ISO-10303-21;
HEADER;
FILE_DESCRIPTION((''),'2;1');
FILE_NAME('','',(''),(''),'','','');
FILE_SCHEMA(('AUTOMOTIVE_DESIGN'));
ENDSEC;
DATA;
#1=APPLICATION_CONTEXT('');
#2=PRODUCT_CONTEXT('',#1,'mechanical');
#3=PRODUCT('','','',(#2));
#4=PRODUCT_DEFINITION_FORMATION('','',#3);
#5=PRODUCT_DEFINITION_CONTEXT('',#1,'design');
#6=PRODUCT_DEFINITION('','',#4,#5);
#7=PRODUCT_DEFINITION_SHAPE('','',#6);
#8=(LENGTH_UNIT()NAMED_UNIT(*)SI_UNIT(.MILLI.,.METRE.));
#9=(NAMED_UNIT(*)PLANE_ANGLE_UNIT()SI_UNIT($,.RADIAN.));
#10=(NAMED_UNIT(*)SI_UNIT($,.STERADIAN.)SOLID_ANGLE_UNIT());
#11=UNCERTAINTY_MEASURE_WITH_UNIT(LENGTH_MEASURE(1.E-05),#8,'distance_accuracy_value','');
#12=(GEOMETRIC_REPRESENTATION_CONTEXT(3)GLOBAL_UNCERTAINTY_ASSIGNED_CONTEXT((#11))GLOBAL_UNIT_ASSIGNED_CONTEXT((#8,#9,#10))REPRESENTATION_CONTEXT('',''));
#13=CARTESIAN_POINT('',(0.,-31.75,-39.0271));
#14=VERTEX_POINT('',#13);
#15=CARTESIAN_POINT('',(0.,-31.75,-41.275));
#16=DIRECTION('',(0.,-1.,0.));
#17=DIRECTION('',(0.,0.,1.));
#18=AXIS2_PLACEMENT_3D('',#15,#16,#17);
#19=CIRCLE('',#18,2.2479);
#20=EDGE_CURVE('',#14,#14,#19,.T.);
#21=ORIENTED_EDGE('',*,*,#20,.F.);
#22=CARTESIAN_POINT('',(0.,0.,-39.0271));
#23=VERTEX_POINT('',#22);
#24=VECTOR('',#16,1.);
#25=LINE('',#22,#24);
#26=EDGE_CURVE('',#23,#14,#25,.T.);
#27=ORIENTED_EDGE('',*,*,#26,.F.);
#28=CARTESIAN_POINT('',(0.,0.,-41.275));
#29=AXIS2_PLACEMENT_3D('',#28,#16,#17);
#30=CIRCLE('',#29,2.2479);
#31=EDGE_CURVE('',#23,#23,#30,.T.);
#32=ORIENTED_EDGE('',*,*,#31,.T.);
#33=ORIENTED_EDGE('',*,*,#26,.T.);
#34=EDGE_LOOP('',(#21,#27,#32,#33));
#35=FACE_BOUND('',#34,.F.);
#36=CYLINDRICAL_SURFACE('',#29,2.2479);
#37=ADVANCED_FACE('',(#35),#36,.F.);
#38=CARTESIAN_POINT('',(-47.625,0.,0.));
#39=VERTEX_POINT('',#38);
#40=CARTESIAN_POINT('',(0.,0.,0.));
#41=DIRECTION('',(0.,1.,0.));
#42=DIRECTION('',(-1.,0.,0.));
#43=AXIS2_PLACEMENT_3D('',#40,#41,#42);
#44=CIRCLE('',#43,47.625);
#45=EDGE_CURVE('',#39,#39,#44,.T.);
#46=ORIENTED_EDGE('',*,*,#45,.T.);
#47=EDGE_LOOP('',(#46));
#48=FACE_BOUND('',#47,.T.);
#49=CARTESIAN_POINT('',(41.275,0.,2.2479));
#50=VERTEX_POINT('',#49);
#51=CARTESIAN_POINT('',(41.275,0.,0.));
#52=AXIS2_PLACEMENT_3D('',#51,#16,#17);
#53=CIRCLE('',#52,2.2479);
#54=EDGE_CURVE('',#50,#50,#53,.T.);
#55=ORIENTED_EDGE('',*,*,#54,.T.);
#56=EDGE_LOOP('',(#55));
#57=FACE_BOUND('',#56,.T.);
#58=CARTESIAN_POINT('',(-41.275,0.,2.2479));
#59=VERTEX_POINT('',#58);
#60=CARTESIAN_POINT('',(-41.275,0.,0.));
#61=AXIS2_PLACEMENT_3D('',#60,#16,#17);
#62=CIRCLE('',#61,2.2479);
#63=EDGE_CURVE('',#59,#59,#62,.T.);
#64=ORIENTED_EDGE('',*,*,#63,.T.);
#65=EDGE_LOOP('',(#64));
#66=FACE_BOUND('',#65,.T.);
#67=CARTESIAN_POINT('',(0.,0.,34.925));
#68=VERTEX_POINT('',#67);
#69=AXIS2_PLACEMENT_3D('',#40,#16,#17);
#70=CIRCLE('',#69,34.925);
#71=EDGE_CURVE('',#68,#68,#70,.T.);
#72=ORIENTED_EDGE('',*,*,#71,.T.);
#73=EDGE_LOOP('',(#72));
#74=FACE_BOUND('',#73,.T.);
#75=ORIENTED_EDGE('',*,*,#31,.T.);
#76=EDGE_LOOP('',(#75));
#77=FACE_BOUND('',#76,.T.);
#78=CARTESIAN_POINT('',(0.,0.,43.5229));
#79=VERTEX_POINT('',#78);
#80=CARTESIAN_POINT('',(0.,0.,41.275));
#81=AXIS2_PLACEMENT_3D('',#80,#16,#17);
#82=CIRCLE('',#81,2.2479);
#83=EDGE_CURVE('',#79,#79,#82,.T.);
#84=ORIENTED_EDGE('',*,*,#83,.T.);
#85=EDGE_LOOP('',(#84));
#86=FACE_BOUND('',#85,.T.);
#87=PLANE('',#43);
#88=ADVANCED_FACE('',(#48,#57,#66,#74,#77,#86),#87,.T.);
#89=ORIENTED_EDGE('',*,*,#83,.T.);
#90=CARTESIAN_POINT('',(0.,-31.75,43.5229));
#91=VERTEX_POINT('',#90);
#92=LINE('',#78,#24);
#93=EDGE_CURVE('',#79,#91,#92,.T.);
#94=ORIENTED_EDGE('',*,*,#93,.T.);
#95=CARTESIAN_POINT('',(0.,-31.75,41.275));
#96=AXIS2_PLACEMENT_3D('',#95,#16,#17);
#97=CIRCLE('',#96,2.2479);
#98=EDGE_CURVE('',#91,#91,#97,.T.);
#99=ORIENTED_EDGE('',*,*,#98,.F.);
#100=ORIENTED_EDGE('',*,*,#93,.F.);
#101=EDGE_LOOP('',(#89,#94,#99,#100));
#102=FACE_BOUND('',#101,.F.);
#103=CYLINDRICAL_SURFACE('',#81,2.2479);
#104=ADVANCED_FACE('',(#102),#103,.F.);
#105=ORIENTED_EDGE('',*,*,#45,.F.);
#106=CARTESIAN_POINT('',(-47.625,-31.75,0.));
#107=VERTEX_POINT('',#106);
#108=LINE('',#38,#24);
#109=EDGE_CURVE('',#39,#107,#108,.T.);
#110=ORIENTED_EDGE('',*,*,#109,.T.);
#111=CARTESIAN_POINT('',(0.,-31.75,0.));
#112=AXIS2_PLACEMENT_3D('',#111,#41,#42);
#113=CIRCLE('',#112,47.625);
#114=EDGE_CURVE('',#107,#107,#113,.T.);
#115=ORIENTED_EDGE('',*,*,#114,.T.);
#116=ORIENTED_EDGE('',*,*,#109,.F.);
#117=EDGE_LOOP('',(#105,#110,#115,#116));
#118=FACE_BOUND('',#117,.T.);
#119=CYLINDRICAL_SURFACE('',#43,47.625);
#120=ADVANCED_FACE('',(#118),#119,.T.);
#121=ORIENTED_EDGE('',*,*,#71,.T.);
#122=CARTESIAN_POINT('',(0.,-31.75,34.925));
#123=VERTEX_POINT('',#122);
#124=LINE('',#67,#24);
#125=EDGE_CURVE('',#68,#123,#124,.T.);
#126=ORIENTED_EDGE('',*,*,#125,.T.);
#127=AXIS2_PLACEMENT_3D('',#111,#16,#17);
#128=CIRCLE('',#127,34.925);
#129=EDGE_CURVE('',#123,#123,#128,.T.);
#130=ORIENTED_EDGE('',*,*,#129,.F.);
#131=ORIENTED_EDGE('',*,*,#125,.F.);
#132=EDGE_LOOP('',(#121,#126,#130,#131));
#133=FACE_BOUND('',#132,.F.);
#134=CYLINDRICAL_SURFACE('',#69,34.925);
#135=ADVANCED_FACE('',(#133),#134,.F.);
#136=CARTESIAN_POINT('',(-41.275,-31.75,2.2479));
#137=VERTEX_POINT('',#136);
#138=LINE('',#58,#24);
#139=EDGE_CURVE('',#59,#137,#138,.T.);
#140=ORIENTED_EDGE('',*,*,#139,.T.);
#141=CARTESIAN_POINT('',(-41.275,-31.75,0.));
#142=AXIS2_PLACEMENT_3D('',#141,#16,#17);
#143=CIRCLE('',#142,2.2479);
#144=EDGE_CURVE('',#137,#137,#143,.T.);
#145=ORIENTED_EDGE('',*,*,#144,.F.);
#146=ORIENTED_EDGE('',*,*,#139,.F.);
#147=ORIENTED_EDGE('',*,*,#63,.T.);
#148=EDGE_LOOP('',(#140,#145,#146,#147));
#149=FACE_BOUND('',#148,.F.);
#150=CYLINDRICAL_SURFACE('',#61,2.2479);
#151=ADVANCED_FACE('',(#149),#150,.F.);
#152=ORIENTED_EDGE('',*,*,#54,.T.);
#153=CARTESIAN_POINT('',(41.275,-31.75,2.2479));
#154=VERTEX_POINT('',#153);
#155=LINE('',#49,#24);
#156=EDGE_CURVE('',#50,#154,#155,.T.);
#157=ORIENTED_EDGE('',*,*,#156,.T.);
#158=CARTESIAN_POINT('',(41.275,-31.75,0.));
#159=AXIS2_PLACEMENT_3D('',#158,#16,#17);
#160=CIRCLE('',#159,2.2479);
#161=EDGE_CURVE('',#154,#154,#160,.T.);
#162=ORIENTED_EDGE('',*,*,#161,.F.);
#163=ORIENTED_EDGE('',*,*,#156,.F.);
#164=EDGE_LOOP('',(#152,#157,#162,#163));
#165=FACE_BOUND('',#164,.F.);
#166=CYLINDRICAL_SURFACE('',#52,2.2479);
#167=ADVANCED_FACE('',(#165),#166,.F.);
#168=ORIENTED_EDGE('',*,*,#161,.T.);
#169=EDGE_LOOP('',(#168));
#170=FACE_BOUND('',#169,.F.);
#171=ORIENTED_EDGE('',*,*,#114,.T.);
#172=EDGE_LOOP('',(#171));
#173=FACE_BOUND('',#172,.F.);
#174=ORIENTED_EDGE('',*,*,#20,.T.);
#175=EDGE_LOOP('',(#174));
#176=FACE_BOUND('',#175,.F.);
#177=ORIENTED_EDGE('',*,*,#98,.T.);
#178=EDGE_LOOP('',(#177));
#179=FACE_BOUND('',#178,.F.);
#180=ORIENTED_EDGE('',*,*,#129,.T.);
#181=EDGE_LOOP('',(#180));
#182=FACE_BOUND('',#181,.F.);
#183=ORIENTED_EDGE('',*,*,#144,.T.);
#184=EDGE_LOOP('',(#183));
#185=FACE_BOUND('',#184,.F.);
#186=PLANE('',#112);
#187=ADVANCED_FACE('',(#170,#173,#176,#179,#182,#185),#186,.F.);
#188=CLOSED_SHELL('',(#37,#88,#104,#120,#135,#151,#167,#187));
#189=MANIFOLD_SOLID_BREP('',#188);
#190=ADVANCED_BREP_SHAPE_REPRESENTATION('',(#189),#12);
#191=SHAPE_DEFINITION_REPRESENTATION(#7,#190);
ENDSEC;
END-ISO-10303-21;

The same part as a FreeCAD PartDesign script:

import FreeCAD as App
import Part
import Sketcher
from FreeCAD import Vector
Q = App.Units.Quantity

doc = App.newDocument("Part")
body = doc.addObject("PartDesign::Body", "Body")

# Sketch on XZ plane
sketch1 = body.newObject("Sketcher::SketchObject", "Sketch")
sketch1.AttachmentSupport = (doc.getObject("XZ_Plane"), [""])
sketch1.MapMode = "FlatFace"
sketch1.addGeometry(Part.Circle(Vector(0, 0, 0), Vector(0, 0, 1), 48), False)
sketch1.addConstraint(Sketcher.Constraint("Coincident", 0, 3, -1, 1))
sketch1.addConstraint(Sketcher.Constraint("Diameter", 0, Q("3.75 in")))
pad1 = body.newObject("PartDesign::Pad", "Pad")
pad1.Profile = sketch1
pad1.Length = Q("1.25 in")

# Sketch on XZ plane
sketch2 = body.newObject("Sketcher::SketchObject", "Sketch001")
sketch2.AttachmentSupport = (doc.getObject("XZ_Plane"), [""])
sketch2.MapMode = "FlatFace"
sketch2.addGeometry(Part.Circle(Vector(-41.3, 0, 0), Vector(0, 0, 1), 2.2), False)
sketch2.addGeometry(Part.Circle(Vector(0, -41.3, 0), Vector(0, 0, 1), 2.2), False)
sketch2.addGeometry(Part.Circle(Vector(41.3, 0, 0), Vector(0, 0, 1), 2.2), False)
sketch2.addGeometry(Part.Circle(Vector(0, 41.3, 0), Vector(0, 0, 1), 2.2), False)
sketch2.addConstraint(Sketcher.Constraint("Equal", 0, 1))
sketch2.addConstraint(Sketcher.Constraint("Equal", 1, 2))
sketch2.addConstraint(Sketcher.Constraint("Equal", 2, 3))
sketch2.addConstraint(Sketcher.Constraint("Symmetric", 0, 3, 2, 3, -1, 1))
sketch2.addConstraint(Sketcher.Constraint("Symmetric", 1, 3, 3, 3, -1, 1))
sketch2.addConstraint(Sketcher.Constraint("PointOnObject", 0, 3, -1))
sketch2.addConstraint(Sketcher.Constraint("PointOnObject", 1, 3, -2))
sketch2.addConstraint(Sketcher.Constraint("Diameter", 0, Q("0.177 in")))
sketch2.addConstraint(Sketcher.Constraint("DistanceX", 0, 3, 2, 3, Q("3.25 in")))
sketch2.addConstraint(Sketcher.Constraint("DistanceY", 1, 3, 3, 3, Q("3.25 in")))
doc.recompute()
hole = body.newObject("PartDesign::Hole", "Hole")
hole.Profile = sketch2
hole.ThreadType = "None"
hole.Diameter = Q("0.177 in")
hole.DepthType = "ThroughAll"
hole.Reversed = True

# Sketch on XZ plane
sketch3 = body.newObject("Sketcher::SketchObject", "Sketch002")
sketch3.AttachmentSupport = (doc.getObject("XZ_Plane"), [""])
sketch3.MapMode = "FlatFace"
sketch3.addGeometry(Part.Circle(Vector(0, 0, 0), Vector(0, 0, 1), 35), False)
sketch3.addConstraint(Sketcher.Constraint("Coincident", 0, 3, -1, 1))
sketch3.addConstraint(Sketcher.Constraint("Diameter", 0, Q("2.75 in")))
doc.recompute()
hole2 = body.newObject("PartDesign::Hole", "Hole001")
hole2.Profile = sketch3
hole2.ThreadType = "None"
hole2.Diameter = Q("2.75 in")
hole2.DepthType = "ThroughAll"
hole2.Reversed = True

doc.recompute()
